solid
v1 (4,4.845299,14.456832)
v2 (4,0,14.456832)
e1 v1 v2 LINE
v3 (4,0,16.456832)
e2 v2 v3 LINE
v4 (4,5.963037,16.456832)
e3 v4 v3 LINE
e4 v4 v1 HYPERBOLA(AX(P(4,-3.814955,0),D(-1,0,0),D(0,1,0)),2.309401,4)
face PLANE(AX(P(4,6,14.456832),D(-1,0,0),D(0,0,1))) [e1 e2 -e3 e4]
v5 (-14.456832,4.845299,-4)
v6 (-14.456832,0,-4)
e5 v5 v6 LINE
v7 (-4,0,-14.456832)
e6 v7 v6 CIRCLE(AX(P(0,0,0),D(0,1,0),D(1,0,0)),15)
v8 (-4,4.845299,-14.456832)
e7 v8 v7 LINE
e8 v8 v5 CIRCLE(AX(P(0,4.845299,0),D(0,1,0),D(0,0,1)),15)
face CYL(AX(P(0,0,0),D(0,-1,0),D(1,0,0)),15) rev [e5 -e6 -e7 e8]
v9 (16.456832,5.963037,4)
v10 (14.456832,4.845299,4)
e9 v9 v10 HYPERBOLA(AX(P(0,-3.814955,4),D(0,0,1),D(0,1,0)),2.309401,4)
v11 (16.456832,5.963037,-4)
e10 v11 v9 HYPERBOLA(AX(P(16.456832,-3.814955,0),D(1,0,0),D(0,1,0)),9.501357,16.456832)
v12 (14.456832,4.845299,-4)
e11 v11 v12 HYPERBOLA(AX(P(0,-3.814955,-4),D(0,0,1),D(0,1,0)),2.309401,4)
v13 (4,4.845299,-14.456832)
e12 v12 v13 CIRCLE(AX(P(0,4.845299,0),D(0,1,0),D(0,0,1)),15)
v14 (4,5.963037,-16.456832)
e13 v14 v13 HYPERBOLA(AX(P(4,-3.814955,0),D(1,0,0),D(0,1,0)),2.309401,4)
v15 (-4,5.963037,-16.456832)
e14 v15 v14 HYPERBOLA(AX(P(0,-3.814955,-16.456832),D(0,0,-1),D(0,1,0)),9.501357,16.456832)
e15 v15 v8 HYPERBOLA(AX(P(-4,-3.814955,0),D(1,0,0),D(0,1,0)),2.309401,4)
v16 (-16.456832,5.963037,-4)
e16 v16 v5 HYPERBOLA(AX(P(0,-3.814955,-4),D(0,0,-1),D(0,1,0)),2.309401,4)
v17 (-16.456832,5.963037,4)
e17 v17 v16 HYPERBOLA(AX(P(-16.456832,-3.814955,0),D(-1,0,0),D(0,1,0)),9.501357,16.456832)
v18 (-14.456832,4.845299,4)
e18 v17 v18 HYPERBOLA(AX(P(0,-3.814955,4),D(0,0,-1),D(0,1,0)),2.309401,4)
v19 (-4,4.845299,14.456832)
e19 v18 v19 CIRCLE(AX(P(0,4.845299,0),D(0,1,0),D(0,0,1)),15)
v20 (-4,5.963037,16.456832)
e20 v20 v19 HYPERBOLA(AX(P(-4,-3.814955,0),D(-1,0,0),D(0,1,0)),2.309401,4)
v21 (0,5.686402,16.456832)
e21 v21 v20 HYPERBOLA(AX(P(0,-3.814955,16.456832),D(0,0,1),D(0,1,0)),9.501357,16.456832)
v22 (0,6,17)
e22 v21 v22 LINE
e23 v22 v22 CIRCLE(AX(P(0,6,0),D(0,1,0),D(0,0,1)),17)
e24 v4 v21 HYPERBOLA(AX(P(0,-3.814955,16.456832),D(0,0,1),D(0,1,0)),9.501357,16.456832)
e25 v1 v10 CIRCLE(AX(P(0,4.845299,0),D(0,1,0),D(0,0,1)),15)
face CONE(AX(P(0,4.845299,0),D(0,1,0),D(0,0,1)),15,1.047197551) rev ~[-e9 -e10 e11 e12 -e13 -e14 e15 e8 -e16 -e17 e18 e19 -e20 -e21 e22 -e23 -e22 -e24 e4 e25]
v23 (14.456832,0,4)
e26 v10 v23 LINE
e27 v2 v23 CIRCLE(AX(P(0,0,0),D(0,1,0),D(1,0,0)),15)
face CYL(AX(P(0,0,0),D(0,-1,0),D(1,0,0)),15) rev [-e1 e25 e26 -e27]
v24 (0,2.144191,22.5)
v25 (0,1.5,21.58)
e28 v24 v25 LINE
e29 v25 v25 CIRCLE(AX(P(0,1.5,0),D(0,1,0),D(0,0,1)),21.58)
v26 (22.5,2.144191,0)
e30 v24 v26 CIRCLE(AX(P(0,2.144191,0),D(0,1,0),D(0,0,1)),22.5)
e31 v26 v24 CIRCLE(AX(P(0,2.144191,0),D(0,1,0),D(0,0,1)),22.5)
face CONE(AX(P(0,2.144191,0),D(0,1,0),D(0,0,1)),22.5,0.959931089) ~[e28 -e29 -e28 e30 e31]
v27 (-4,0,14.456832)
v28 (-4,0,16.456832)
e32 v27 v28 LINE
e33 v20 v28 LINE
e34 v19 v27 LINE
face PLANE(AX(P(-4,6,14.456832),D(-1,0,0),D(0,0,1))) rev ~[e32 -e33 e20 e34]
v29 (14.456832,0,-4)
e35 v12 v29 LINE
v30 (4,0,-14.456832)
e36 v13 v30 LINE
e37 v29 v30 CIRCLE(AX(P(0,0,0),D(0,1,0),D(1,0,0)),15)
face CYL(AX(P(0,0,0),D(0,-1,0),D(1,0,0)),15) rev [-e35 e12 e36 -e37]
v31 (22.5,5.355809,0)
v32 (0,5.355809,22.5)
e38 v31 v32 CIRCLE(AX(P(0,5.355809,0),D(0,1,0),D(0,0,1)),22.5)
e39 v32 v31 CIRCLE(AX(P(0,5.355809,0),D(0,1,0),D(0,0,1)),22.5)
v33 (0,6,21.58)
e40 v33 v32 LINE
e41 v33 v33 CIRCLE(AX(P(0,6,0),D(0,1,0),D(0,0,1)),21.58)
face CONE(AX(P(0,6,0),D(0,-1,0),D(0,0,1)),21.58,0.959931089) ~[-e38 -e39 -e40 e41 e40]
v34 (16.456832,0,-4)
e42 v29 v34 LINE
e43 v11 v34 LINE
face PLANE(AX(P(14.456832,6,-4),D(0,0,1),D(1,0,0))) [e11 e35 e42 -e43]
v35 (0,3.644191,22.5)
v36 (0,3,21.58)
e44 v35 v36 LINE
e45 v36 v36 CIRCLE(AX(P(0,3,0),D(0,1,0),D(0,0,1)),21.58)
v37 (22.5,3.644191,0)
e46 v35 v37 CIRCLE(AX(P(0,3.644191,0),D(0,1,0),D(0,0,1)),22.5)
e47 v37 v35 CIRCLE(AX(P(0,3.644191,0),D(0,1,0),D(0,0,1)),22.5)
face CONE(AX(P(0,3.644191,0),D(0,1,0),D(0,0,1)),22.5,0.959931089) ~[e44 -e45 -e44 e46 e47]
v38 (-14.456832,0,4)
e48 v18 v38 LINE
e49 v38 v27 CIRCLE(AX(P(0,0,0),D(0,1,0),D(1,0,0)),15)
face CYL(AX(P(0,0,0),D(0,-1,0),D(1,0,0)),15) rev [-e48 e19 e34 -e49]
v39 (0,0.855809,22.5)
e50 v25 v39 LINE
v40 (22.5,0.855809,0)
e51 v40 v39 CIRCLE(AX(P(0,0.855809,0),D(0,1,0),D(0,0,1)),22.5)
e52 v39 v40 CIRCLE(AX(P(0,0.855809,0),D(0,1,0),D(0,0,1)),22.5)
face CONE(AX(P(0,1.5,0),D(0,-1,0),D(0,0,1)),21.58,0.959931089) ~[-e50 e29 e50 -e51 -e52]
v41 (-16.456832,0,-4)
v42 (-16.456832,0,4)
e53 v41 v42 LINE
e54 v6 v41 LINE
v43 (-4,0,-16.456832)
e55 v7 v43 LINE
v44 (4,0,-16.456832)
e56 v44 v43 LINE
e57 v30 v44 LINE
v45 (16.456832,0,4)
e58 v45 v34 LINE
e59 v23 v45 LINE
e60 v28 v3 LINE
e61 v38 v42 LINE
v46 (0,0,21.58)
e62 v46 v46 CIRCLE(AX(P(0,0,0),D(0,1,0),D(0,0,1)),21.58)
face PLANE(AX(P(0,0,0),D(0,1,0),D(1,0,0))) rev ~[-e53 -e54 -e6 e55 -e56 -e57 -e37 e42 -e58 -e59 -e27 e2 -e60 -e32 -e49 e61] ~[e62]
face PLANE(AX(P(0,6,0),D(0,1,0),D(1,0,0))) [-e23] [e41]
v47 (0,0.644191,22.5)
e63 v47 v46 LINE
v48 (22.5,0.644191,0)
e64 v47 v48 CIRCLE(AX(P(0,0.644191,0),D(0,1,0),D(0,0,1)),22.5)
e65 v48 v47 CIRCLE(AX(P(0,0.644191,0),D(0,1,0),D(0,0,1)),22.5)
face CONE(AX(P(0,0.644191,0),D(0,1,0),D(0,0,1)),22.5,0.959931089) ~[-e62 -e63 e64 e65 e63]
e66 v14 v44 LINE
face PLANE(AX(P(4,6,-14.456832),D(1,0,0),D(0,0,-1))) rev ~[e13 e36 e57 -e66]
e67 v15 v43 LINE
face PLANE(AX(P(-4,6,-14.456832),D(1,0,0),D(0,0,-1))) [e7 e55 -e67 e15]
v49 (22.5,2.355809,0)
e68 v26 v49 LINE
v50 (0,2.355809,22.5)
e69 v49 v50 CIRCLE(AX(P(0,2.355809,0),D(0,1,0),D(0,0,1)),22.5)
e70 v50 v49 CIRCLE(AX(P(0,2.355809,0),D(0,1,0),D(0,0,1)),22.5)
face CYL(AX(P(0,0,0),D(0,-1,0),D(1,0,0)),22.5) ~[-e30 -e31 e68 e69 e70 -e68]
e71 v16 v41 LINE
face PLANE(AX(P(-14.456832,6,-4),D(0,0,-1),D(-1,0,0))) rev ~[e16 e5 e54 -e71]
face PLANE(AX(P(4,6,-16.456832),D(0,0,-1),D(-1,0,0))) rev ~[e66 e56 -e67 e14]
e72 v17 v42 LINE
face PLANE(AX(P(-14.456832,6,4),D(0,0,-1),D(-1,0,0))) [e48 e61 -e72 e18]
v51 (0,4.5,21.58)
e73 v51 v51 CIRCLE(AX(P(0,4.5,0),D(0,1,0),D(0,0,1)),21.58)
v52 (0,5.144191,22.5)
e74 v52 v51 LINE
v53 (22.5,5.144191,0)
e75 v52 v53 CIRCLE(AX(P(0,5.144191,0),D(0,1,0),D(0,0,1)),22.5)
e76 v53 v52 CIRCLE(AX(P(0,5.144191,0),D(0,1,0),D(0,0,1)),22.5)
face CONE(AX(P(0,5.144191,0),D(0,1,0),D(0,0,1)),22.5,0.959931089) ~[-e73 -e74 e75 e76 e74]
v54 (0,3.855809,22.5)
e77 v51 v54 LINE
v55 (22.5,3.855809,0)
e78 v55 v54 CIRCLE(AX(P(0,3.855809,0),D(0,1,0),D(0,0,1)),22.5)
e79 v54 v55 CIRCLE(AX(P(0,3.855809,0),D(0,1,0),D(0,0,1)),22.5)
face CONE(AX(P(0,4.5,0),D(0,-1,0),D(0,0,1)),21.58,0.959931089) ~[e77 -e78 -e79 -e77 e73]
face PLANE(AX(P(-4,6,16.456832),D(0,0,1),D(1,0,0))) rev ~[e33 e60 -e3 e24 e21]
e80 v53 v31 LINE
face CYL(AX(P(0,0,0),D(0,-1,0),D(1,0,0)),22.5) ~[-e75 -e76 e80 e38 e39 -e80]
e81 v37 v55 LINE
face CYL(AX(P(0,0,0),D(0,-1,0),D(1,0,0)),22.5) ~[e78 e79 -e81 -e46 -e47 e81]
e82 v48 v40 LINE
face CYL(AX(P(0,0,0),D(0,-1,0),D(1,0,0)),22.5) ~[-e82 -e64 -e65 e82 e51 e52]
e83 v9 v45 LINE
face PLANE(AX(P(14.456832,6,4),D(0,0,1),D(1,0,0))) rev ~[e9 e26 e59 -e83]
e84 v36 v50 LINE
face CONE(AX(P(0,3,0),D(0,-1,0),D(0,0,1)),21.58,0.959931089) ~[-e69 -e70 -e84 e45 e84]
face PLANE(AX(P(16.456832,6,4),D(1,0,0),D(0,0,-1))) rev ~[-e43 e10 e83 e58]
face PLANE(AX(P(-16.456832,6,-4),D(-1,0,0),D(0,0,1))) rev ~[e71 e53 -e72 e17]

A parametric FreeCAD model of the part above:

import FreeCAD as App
import Part
import Sketcher
Q = App.Units.Quantity


def add_polygon(sketch, points):
    """Adds a closed chain of lines whose ends are joined by coincident constraints."""
    first, n = sketch.GeometryCount, len(points)
    for a, b in zip(points, points[1:] + points[:1]):
        sketch.addGeometry(Part.LineSegment(App.Vector(*a, 0), App.Vector(*b, 0)), False)
    for i in range(n):
        sketch.addConstraint(Sketcher.Constraint("Coincident", first + i, 2, first + (i + 1) % n, 1))

doc = App.newDocument("Part")
params = doc.addObject("Spreadsheet::Sheet", "Params")
for row, (alias, value) in enumerate([
    ("sketch1_diameter", "45 mm"),
    ("sketch1_diameter2", "30 mm"),
    ("pad1_length", "6 mm"),
    ("sketch2_height", "2.5 mm"),
    ("groove_angle", "360 deg"),
    ("sketch3_height", "2 mm"),
    ("groove2_angle", "360 deg"),
    ("linearpattern_pitch", "1.5 mm"),
    ("sketch4_width", "2 mm"),
    ("sketch4_height", "8 mm"),
], start=1):
    params.set(f"A{row}", alias)
    params.set(f"B{row}", "=" + value)
    params.setAlias(f"B{row}", alias)

body = doc.addObject("PartDesign::Body", "Body")

# Sketch on XZ plane
sketch1 = body.newObject("Sketcher::SketchObject", "Sketch")
sketch1.AttachmentSupport = (doc.getObject("XZ_Plane"), [""])
sketch1.MapMode = "FlatFace"
sketch1.addGeometry([
    Part.Circle(App.Vector(0, 0, 0), App.Vector(0, 0, 1), 22),
    Part.Circle(App.Vector(0, 0, 0), App.Vector(0, 0, 1), 15),
], False)
sketch1.addConstraint([
    Sketcher.Constraint("Coincident", 0, 3, -1, 1),
    Sketcher.Constraint("Coincident", 1, 3, -1, 1),
    Sketcher.Constraint("Diameter", 0, 45.0),
    Sketcher.Constraint("Diameter", 1, 30.0),
])
sketch1.setExpression("Constraints[2]", "Params.sketch1_diameter")
sketch1.setExpression("Constraints[3]", "Params.sketch1_diameter2")
pad1 = body.newObject("PartDesign::Pad", "Pad")
pad1.Profile = sketch1
pad1.setExpression("Length", "Params.pad1_length")
pad1.Reversed = True

# Sketch on YZ plane
sketch2 = body.newObject("Sketcher::SketchObject", "Sketch001")
sketch2.AttachmentSupport = (doc.getObject("YZ_Plane"), [""])
sketch2.MapMode = "FlatFace"
add_polygon(sketch2, [(5.4, 22.5), (6, 21.6), (6.6, 22.5), (6.6, 25), (5.4, 25)])  # lines 0-4
sketch2.addConstraint([
    Sketcher.Constraint("Vertical", 2),
    Sketcher.Constraint("Horizontal", 3),
    Sketcher.Constraint("Vertical", 4),
    Sketcher.Constraint("Horizontal", 1, 2, 4, 2),
    Sketcher.Constraint("Equal", 0, 1),
    Sketcher.Constraint("Angle", 0, Q("-55 deg")),
    Sketcher.Constraint("DistanceY", 2, 1, 2, 2, 2.5),
    Sketcher.Constraint("DistanceX", -1, 1, 0, 2, 6.0),
    Sketcher.Constraint("DistanceY", -1, 1, 2, 2, 25.0),
    Sketcher.Constraint("DistanceY", -1, 1, 0, 2, 21.58),
])
sketch2.setExpression("Constraints[11]", "Params.sketch2_height")
groove = body.newObject("PartDesign::Groove", "Groove")
groove.Profile = sketch2
groove.ReferenceAxis = (sketch2, ["H_Axis"])
groove.setExpression("Angle", "Params.groove_angle")

# Sketch on YZ plane
sketch3 = body.newObject("Sketcher::SketchObject", "Sketch002")
sketch3.AttachmentSupport = (doc.getObject("YZ_Plane"), [""])
sketch3.MapMode = "FlatFace"
add_polygon(sketch3, [(6, 17), (4.8, 15), (6, 15)])  # lines 0-2
sketch3.addConstraint([
    Sketcher.Constraint("Horizontal", 1),
    Sketcher.Constraint("Vertical", 2),
    Sketcher.Constraint("DistanceY", 2, 1, 2, 2, 2.0),
    Sketcher.Constraint("Angle", 0, Q("-120 deg")),
    Sketcher.Constraint("DistanceY", -1, 1, 0, 2, 15.0),
    Sketcher.Constraint("DistanceX", -1, 1, 1, 2, 6.0),
])
sketch3.setExpression("Constraints[5]", "Params.sketch3_height")
groove2 = body.newObject("PartDesign::Groove", "Groove001")
groove2.Profile = sketch3
groove2.ReferenceAxis = (sketch3, ["H_Axis"])
groove2.setExpression("Angle", "Params.groove2_angle")
doc.recompute()

linearpattern = body.newObject("PartDesign::LinearPattern", "LinearPattern")
linearpattern.Originals = [groove]
linearpattern.Direction = (doc.getObject("Y_Axis"), [""])
linearpattern.Mode = "offset"
linearpattern.setExpression("Offset", "Params.linearpattern_pitch")
linearpattern.Occurrences = 5
linearpattern.Reversed = True
body.Tip = linearpattern

# Sketch on XZ plane
sketch4 = body.newObject("Sketcher::SketchObject", "Sketch003")
sketch4.AttachmentSupport = (doc.getObject("XZ_Plane"), [""])
sketch4.MapMode = "FlatFace"
sketch4.AttachmentOffset = App.Placement(App.Vector(0, 0, -6), App.Rotation())
add_polygon(sketch4, [(14.5, -4), (14.5, 4), (16.5, 4), (16.5, -4)])  # lines 0-3
sketch4.addConstraint([
    Sketcher.Constraint("Vertical", 0),
    Sketcher.Constraint("Horizontal", 1),
    Sketcher.Constraint("Vertical", 2),
    Sketcher.Constraint("Horizontal", 3),
    Sketcher.Constraint("DistanceX", 1, 1, 1, 2, 2.0),
    Sketcher.Constraint("DistanceY", 0, 1, 0, 2, 8.0),
    Sketcher.Constraint("DistanceY", -1, 1, 0, 2, 4.0),
    Sketcher.Constraint("DistanceX", -1, 1, 0, 2, 14.456832),
])
sketch4.setExpression("Constraints[8]", "Params.sketch4_width")
sketch4.setExpression("Constraints[9]", "Params.sketch4_height")
pocket1 = body.newObject("PartDesign::Pocket", "Pocket")
pocket1.Profile = sketch4
pocket1.Type = "ThroughAll"
pocket1.Reversed = True
doc.recompute()

polarpattern = body.newObject("PartDesign::PolarPattern", "PolarPattern")
polarpattern.Originals = [pocket1]
polarpattern.Axis = (doc.getObject("Y_Axis"), [""])
polarpattern.Angle = 360
polarpattern.Occurrences = 4
body.Tip = polarpattern

doc.recompute()
